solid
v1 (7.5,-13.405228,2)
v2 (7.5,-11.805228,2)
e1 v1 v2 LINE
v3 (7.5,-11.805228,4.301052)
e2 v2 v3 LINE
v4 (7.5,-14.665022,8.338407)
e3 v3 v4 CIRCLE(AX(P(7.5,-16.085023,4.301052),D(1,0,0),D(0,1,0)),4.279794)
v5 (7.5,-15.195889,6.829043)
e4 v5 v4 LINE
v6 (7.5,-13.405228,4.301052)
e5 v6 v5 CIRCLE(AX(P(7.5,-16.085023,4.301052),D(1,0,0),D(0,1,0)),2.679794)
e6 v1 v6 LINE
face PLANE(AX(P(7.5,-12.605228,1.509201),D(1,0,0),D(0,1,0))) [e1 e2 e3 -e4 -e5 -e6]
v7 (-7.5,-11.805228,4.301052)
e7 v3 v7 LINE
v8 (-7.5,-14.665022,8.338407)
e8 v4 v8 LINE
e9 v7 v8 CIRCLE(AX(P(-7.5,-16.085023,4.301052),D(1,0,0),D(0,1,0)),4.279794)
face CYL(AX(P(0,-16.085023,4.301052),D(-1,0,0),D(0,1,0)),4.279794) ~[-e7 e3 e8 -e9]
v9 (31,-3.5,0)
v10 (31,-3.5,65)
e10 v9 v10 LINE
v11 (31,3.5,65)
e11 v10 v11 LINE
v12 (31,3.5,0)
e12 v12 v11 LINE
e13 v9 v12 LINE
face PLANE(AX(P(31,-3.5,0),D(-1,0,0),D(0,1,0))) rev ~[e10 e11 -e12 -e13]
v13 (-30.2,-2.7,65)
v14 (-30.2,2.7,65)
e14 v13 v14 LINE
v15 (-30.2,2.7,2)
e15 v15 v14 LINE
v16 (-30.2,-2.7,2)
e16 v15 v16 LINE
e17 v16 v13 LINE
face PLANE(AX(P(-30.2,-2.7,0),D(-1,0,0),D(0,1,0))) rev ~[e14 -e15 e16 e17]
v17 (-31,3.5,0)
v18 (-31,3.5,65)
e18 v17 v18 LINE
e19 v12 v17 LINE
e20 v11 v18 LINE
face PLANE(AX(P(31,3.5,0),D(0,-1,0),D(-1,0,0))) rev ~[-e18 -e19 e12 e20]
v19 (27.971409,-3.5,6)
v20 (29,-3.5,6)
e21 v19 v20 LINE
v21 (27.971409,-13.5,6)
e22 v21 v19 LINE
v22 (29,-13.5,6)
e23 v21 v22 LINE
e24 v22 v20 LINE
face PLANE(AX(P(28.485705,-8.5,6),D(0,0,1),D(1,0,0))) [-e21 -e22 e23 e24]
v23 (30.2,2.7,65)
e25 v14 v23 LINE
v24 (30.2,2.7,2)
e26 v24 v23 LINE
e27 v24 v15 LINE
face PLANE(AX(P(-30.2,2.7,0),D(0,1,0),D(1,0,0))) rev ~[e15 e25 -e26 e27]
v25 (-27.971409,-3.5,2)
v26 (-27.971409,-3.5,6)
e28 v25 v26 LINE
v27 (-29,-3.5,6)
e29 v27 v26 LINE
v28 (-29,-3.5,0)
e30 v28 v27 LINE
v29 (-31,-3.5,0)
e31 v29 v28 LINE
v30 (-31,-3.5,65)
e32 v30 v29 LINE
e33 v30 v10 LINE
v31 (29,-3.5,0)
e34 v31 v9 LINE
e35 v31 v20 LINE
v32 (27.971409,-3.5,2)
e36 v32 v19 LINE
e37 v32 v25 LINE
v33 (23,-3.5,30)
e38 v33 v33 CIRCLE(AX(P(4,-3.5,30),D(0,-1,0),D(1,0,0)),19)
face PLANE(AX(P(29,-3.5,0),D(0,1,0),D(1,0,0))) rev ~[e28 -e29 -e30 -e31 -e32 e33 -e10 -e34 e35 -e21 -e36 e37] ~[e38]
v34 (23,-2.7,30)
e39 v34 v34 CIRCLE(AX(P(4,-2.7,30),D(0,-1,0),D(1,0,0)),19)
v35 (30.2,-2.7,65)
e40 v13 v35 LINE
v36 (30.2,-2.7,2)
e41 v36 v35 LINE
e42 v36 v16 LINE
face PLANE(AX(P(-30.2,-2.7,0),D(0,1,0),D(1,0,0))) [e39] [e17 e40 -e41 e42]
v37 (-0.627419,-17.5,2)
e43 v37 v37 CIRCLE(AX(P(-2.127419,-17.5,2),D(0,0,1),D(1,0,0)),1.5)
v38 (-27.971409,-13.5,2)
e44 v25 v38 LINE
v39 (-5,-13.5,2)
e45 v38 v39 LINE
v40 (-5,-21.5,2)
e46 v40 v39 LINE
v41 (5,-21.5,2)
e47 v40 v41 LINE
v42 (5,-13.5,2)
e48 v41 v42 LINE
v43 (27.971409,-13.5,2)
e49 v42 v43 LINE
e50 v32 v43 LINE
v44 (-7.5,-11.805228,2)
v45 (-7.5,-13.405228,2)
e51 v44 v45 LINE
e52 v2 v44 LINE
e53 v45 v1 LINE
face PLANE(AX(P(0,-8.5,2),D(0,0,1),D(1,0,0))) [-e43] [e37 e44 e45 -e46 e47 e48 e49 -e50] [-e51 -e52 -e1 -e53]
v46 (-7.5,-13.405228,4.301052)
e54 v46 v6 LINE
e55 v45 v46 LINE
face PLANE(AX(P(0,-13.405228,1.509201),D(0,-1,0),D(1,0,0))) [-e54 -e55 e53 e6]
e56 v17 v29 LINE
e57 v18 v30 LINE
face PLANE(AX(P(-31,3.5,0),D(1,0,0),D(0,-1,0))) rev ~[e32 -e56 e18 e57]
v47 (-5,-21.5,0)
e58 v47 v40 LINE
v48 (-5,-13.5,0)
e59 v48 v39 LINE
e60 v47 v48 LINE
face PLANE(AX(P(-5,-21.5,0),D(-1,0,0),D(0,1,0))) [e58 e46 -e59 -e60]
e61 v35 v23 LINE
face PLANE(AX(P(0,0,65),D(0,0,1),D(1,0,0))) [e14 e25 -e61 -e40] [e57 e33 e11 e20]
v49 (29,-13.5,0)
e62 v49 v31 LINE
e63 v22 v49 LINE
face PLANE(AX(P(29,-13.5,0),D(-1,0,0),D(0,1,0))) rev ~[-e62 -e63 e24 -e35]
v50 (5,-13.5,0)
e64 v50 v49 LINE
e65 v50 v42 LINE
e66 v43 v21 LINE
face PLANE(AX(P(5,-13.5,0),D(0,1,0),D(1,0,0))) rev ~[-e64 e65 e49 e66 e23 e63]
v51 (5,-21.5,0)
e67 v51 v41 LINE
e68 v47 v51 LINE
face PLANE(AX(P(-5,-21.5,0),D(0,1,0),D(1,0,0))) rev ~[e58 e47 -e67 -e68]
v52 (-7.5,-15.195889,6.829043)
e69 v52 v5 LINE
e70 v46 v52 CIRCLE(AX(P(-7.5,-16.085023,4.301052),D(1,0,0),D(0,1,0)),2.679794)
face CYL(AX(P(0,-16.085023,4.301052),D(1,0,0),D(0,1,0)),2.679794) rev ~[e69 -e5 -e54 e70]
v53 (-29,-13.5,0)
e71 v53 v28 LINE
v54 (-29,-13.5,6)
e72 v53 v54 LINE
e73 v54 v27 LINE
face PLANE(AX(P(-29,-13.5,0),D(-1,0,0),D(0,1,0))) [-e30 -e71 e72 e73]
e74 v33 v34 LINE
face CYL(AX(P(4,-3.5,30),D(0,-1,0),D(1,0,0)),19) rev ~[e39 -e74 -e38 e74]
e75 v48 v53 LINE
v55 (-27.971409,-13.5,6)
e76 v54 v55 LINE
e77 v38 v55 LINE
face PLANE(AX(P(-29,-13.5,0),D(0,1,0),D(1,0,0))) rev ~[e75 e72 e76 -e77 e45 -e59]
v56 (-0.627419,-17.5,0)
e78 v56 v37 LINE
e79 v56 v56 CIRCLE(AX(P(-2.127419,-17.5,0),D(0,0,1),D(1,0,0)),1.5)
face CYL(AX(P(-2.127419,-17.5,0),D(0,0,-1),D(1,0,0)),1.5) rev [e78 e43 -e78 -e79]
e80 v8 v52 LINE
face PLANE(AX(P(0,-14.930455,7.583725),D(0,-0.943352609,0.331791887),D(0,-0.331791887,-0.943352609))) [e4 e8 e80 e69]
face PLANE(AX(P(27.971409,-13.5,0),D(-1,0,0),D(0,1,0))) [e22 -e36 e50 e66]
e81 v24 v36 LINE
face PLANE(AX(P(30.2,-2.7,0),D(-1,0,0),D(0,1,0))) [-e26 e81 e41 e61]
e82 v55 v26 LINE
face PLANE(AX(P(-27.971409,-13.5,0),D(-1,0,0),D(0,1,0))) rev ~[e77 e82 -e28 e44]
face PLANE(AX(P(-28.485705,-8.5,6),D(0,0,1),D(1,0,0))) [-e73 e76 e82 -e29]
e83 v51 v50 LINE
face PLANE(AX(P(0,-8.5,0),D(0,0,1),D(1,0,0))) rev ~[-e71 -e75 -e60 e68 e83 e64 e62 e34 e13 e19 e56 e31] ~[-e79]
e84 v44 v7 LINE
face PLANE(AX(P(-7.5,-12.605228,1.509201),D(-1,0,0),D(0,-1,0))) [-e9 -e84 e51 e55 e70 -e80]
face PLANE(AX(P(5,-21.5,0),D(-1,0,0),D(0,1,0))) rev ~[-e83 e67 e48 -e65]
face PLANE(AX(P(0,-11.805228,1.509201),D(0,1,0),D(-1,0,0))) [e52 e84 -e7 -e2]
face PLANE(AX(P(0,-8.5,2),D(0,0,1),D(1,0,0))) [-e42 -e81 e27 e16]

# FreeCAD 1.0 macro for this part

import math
import FreeCAD as App
import Part
import Sketcher

V = App.Vector
Q = App.Units.Quantity


def add_polygon(sketch, points):
    """Adds a closed chain of lines whose ends are joined by coincident constraints."""
    first, n = sketch.GeometryCount, len(points)
    for a, b in zip(points, points[1:] + points[:1]):
        sketch.addGeometry(Part.LineSegment(App.Vector(*a, 0), App.Vector(*b, 0)), False)
    for i in range(n):
        sketch.addConstraint(Sketcher.Constraint("Coincident", first + i, 2, first + (i + 1) % n, 1))

doc = App.newDocument("Part")
body = doc.addObject("PartDesign::Body", "Body")

# Sketch on XY plane
sketch1 = body.newObject("Sketcher::SketchObject", "Sketch")
sketch1.AttachmentSupport = (doc.getObject("XY_Plane"), [""])
sketch1.MapMode = "FlatFace"
add_polygon(sketch1, [(29, -3.5), (31, -3.5), (31, 3.5), (-31, 3.5), (-31, -3.5), (-29, -3.5), (-29, -13.5), (-5, -13.5), (-5, -21.5), (5, -21.5), (5, -13.5), (29, -13.5)])  # lines 0-11
sketch1.addGeometry(Part.Circle(V(-2.1, -17.5, 0), V(0, 0, 1), 1.5), False)  # 12
sketch1.addConstraint(Sketcher.Constraint("Horizontal", 0))
sketch1.addConstraint(Sketcher.Constraint("Vertical", 1))
sketch1.addConstraint(Sketcher.Constraint("Horizontal", 2))
sketch1.addConstraint(Sketcher.Constraint("Vertical", 3))
sketch1.addConstraint(Sketcher.Constraint("Horizontal", 4))
sketch1.addConstraint(Sketcher.Constraint("Vertical", 5))
sketch1.addConstraint(Sketcher.Constraint("Horizontal", 6))
sketch1.addConstraint(Sketcher.Constraint("Vertical", 7))
sketch1.addConstraint(Sketcher.Constraint("Horizontal", 8))
sketch1.addConstraint(Sketcher.Constraint("Vertical", 9))
sketch1.addConstraint(Sketcher.Constraint("Horizontal", 10))
sketch1.addConstraint(Sketcher.Constraint("Vertical", 11))
sketch1.addConstraint(Sketcher.Constraint("Symmetric", 0, 2, 2, 2, -1, 1))
sketch1.addConstraint(Sketcher.Constraint("Symmetric", 6, 2, 9, 2, -2))
sketch1.addConstraint(Sketcher.Constraint("Symmetric", 4, 2, 11, 2, -2))
sketch1.addConstraint(Sketcher.Constraint("Equal", 8, 5))
sketch1.addConstraint(Sketcher.Constraint("Diameter", 12, Q("3 mm")))
sketch1.addConstraint(Sketcher.Constraint("DistanceX", 0, 1, 0, 2, Q("2 mm")))
sketch1.addConstraint(Sketcher.Constraint("DistanceX", 2, 2, 2, 1, Q("62 mm")))
sketch1.addConstraint(Sketcher.Constraint("DistanceX", 6, 1, 6, 2, Q("24 mm")))
sketch1.addConstraint(Sketcher.Constraint("DistanceY", 1, 1, 1, 2, Q("7 mm")))
sketch1.addConstraint(Sketcher.Constraint("DistanceY", 7, 2, 7, 1, Q("8 mm")))
sketch1.addConstraint(Sketcher.Constraint("DistanceY", 12, 3, 0, 2, Q("14 mm")))
sketch1.addConstraint(Sketcher.Constraint("DistanceX", 12, 3, -1, 1, Q("2.127419 mm")))
pad1 = body.newObject("PartDesign::Pad", "Pad")
pad1.Profile = sketch1
pad1.Length = 2

# Sketch on XY plane
sketch2 = body.newObject("Sketcher::SketchObject", "Sketch001")
sketch2.AttachmentSupport = (doc.getObject("XY_Plane"), [""])
sketch2.MapMode = "FlatFace"
add_polygon(sketch2, [(31, -4), (31, 4), (-31, 4), (-31, -4)])  # lines 0-3
add_polygon(sketch2, [(30, -3), (-30, -3), (-30, 3), (30, 3)])  # lines 4-7
sketch2.addConstraint(Sketcher.Constraint("Vertical", 0))
sketch2.addConstraint(Sketcher.Constraint("Horizontal", 1))
sketch2.addConstraint(Sketcher.Constraint("Vertical", 2))
sketch2.addConstraint(Sketcher.Constraint("Horizontal", 3))
sketch2.addConstraint(Sketcher.Constraint("Horizontal", 4))
sketch2.addConstraint(Sketcher.Constraint("Vertical", 5))
sketch2.addConstraint(Sketcher.Constraint("Horizontal", 6))
sketch2.addConstraint(Sketcher.Constraint("Vertical", 7))
sketch2.addConstraint(Sketcher.Constraint("Symmetric", 0, 2, 2, 2, -1, 1))
sketch2.addConstraint(Sketcher.Constraint("Symmetric", 4, 2, 6, 2, -1, 1))
sketch2.addConstraint(Sketcher.Constraint("DistanceX", 1, 2, 1, 1, Q("62 mm")))
sketch2.addConstraint(Sketcher.Constraint("DistanceY", 0, 1, 0, 2, Q("7 mm")))
sketch2.addConstraint(Sketcher.Constraint("DistanceX", 4, 2, 4, 1, Q("60.4 mm")))
sketch2.addConstraint(Sketcher.Constraint("DistanceY", 5, 1, 5, 2, Q("5.4 mm")))
pad2 = body.newObject("PartDesign::Pad", "Pad001")
pad2.Profile = sketch2
pad2.Length = 65

# Sketch on XZ plane
sketch3 = body.newObject("Sketcher::SketchObject", "Sketch002")
sketch3.AttachmentSupport = (doc.getObject("XZ_Plane"), [""])
sketch3.MapMode = "FlatFace"
sketch3.AttachmentOffset = App.Placement(V(0, 0, 3.5), App.Rotation())
sketch3.addGeometry(Part.Circle(V(4, 30, 0), V(0, 0, 1), 19), False)
sketch3.addConstraint(Sketcher.Constraint("Diameter", 0, Q("38 mm")))
sketch3.addConstraint(Sketcher.Constraint("DistanceX", -1, 1, 0, 3, Q("4 mm")))
sketch3.addConstraint(Sketcher.Constraint("DistanceY", -1, 1, 0, 3, Q("30 mm")))
pocket1 = body.newObject("PartDesign::Pocket", "Pocket")
pocket1.Profile = sketch3
pocket1.Length = 2

# Sketch on XY plane
sketch4 = body.newObject("Sketcher::SketchObject", "Sketch003")
sketch4.AttachmentSupport = (doc.getObject("XY_Plane"), [""])
sketch4.MapMode = "FlatFace"
add_polygon(sketch4, [(28, -3.5), (28, -13.5), (29, -13.5), (29, -3.5)])  # lines 0-3
add_polygon(sketch4, [(-29, -3.5), (-29, -13.5), (-28, -13.5), (-28, -3.5)])  # lines 4-7
sketch4.addConstraint(Sketcher.Constraint("Vertical", 0))
sketch4.addConstraint(Sketcher.Constraint("Horizontal", 1))
sketch4.addConstraint(Sketcher.Constraint("Vertical", 2))
sketch4.addConstraint(Sketcher.Constraint("Horizontal", 3))
sketch4.addConstraint(Sketcher.Constraint("Vertical", 4))
sketch4.addConstraint(Sketcher.Constraint("Horizontal", 5))
sketch4.addConstraint(Sketcher.Constraint("Vertical", 6))
sketch4.addConstraint(Sketcher.Constraint("Horizontal", 7))
sketch4.addConstraint(Sketcher.Constraint("Symmetric", 1, 2, 4, 2, -2))
sketch4.addConstraint(Sketcher.Constraint("Symmetric", 3, 2, 6, 2, -2))
sketch4.addConstraint(Sketcher.Constraint("DistanceY", 0, 2, 0, 1, Q("10 mm")))
sketch4.addConstraint(Sketcher.Constraint("DistanceX", -1, 1, 1, 2, Q("29 mm")))
sketch4.addConstraint(Sketcher.Constraint("DistanceY", 0, 2, -1, 1, Q("13.5 mm")))
sketch4.addConstraint(Sketcher.Constraint("DistanceX", 1, 1, 1, 2, Q("1.028591 mm")))
pad3 = body.newObject("PartDesign::Pad", "Pad002")
pad3.Profile = sketch4
pad3.Length = 6

# Sketch on XY plane
sketch5 = body.newObject("Sketcher::SketchObject", "Sketch004")
sketch5.AttachmentSupport = (doc.getObject("XY_Plane"), [""])
sketch5.MapMode = "FlatFace"
sketch5.AttachmentOffset = App.Placement(V(0, 0, 2), App.Rotation())
add_polygon(sketch5, [(-7.5, -11.8), (-7.5, -13.4), (7.5, -13.4), (7.5, -11.8)])  # lines 0-3
sketch5.addConstraint(Sketcher.Constraint("Vertical", 0))
sketch5.addConstraint(Sketcher.Constraint("Horizontal", 1))
sketch5.addConstraint(Sketcher.Constraint("Vertical", 2))
sketch5.addConstraint(Sketcher.Constraint("Horizontal", 3))
sketch5.addConstraint(Sketcher.Constraint("DistanceX", 1, 1, 1, 2, Q("15 mm")))
sketch5.addConstraint(Sketcher.Constraint("DistanceY", 0, 2, 0, 1, Q("1.6 mm")))
sketch5.addConstraint(Sketcher.Constraint("DistanceX", 0, 2, -1, 1, Q("7.5 mm")))
sketch5.addConstraint(Sketcher.Constraint("DistanceY", 0, 2, -1, 1, Q("13.405228 mm")))

# Sketch on YZ plane
sketch6 = body.newObject("Sketcher::SketchObject", "Sketch005")
sketch6.AttachmentSupport = (doc.getObject("YZ_Plane"), [""])
sketch6.MapMode = "FlatFace"
sketch6.addGeometry(Part.LineSegment(V(-13.6, 1.5, 0), V(-13.6, 4.3, 0)), False)
sketch6.addGeometry(Part.ArcOfCircle(Part.Circle(V(-16.1, 4.3, 0), V(0, 0, 1), 2.5), math.radians(0), math.radians(71)), False)
sketch6.addConstraint(Sketcher.Constraint("Tangent", 0, 2, 1, 1))
sketch6.addConstraint(Sketcher.Constraint("Vertical", 0))
sketch6.addConstraint(Sketcher.Constraint("Radius", 1, Q("2.466594 mm")))
sketch6.addConstraint(Sketcher.Constraint("DistanceY", 0, 1, 0, 2, Q("2.791851 mm")))
sketch6.addConstraint(Sketcher.Constraint("DistanceY", -1, 1, 0, 1, Q("1.509201 mm")))
sketch6.addConstraint(Sketcher.Constraint("DistanceX", 0, 1, -1, 1, Q("13.618429 mm")))
sketch6.addConstraint(Sketcher.Constraint("DistanceY", -1, 1, 1, 2, Q("6.62792 mm")))
doc.recompute()

additivepipe = body.newObject("PartDesign::AdditivePipe", "AdditivePipe")
additivepipe.Profile = sketch5
additivepipe.Spine = (sketch6, ["Edge1", "Edge2"])

doc.recompute()
